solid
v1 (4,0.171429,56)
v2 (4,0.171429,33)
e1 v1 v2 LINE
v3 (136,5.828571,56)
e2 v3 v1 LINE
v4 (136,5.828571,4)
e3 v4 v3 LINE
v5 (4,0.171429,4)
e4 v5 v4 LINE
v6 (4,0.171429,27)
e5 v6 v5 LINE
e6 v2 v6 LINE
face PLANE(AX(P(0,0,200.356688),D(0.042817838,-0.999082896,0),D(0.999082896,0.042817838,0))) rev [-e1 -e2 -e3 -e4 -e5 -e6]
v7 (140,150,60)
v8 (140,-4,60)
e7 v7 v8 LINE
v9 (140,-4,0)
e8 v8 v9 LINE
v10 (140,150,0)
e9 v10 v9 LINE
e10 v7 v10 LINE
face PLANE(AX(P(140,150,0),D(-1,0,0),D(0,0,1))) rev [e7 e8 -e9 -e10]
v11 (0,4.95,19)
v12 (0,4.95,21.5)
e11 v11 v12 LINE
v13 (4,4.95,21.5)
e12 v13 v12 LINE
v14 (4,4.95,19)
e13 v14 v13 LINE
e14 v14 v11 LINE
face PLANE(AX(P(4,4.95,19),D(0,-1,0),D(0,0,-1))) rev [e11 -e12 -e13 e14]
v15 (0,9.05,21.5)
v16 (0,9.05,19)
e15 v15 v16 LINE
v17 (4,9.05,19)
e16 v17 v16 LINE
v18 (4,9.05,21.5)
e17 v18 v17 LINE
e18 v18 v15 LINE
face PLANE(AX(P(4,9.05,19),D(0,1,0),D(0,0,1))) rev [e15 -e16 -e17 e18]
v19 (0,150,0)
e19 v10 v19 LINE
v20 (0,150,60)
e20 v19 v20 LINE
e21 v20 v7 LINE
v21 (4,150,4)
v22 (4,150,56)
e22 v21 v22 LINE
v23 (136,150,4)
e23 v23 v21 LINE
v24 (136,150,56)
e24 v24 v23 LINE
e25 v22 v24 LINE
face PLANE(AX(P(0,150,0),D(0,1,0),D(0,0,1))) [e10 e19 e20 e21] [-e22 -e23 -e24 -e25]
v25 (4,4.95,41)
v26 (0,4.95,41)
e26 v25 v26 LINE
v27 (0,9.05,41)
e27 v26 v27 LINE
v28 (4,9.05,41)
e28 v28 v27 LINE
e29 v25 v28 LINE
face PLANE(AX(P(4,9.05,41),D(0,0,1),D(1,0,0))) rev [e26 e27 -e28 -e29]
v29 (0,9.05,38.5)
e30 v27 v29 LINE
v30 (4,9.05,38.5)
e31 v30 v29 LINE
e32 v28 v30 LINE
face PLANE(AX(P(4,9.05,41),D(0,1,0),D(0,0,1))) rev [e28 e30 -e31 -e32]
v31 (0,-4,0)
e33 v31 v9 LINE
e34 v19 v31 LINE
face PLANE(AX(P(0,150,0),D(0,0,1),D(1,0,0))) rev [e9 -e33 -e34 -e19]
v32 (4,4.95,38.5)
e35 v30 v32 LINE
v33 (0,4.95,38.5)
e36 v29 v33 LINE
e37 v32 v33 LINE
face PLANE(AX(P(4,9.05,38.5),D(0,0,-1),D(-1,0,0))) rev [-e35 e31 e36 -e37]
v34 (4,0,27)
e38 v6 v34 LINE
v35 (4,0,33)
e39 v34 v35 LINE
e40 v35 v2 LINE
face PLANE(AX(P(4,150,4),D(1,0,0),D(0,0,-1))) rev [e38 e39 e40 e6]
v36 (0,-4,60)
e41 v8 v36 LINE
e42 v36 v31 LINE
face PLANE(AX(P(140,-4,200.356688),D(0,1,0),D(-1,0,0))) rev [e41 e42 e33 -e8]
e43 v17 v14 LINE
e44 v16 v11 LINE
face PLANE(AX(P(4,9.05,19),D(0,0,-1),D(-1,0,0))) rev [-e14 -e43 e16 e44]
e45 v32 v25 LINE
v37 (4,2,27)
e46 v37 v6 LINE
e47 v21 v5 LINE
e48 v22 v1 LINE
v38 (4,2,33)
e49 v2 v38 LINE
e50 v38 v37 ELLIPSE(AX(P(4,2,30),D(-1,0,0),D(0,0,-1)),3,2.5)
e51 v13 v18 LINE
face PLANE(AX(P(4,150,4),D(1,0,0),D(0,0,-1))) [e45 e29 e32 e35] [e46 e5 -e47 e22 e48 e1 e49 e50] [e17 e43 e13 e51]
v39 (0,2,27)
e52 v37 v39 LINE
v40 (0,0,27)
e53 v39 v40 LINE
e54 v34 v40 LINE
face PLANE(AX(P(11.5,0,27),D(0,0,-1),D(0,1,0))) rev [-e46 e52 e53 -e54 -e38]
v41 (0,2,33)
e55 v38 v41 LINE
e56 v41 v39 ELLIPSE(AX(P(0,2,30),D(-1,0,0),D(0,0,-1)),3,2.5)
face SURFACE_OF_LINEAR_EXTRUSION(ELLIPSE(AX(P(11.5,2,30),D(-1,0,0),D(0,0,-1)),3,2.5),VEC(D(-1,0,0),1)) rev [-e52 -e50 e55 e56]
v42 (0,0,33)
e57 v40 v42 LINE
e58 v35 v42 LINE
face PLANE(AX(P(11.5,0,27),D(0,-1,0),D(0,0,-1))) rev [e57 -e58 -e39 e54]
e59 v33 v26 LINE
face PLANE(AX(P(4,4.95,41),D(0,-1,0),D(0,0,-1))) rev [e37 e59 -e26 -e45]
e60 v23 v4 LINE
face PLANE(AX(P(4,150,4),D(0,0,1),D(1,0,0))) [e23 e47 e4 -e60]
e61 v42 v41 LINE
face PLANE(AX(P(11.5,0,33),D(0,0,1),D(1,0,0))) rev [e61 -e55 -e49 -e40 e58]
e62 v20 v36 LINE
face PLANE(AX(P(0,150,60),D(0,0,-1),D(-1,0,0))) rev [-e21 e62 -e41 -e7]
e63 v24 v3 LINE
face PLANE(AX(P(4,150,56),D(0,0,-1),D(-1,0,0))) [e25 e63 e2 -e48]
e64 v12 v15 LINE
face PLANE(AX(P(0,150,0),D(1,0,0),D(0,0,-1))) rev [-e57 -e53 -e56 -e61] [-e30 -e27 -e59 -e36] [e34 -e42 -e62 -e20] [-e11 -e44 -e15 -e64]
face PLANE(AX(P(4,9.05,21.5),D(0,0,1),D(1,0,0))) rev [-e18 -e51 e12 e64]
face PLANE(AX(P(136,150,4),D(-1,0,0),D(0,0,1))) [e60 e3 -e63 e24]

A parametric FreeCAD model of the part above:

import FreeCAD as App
import Part
import Sketcher
from FreeCAD import Vector
Q = App.Units.Quantity


def add_polygon(sketch, points):
    """Adds a closed chain of lines whose ends are joined by coincident constraints."""
    first, n = sketch.GeometryCount, len(points)
    for a, b in zip(points, points[1:] + points[:1]):
        sketch.addGeometry(Part.LineSegment(App.Vector(*a, 0), App.Vector(*b, 0)), False)
    for i in range(n):
        sketch.addConstraint(Sketcher.Constraint("Coincident", first + i, 2, first + (i + 1) % n, 1))

doc = App.newDocument("Part")
body = doc.addObject("PartDesign::Body", "Body")

# Sketch on XZ plane
sketch1 = body.newObject("Sketcher::SketchObject", "Sketch")
sketch1.AttachmentSupport = (doc.getObject("XZ_Plane"), [""])
sketch1.MapMode = "FlatFace"
add_polygon(sketch1, [(0, 0), (0, 60), (140, 60), (140, 0)])  # lines 0-3
add_polygon(sketch1, [(136, 56), (4, 56), (4, 4), (136, 4)])  # lines 4-7
sketch1.addConstraint(Sketcher.Constraint("Vertical", 0))
sketch1.addConstraint(Sketcher.Constraint("Horizontal", 1))
sketch1.addConstraint(Sketcher.Constraint("Vertical", 2))
sketch1.addConstraint(Sketcher.Constraint("Horizontal", 3))
sketch1.addConstraint(Sketcher.Constraint("Horizontal", 4))
sketch1.addConstraint(Sketcher.Constraint("Vertical", 5))
sketch1.addConstraint(Sketcher.Constraint("Horizontal", 6))
sketch1.addConstraint(Sketcher.Constraint("Vertical", 7))
sketch1.addConstraint(Sketcher.Constraint("Coincident", 3, 2, -1, 1))
sketch1.addConstraint(Sketcher.Constraint("DistanceX", 1, 1, 1, 2, Q("140 mm")))
sketch1.addConstraint(Sketcher.Constraint("DistanceX", 4, 2, 4, 1, Q("132 mm")))
sketch1.addConstraint(Sketcher.Constraint("DistanceY", 0, 1, 0, 2, Q("60 mm")))
sketch1.addConstraint(Sketcher.Constraint("DistanceY", 5, 2, 5, 1, Q("52 mm")))
sketch1.addConstraint(Sketcher.Constraint("DistanceX", -1, 1, 4, 2, Q("4 mm")))
sketch1.addConstraint(Sketcher.Constraint("DistanceY", -1, 1, 4, 2, Q("56 mm")))
pad1 = body.newObject("PartDesign::Pad", "Pad")
pad1.Profile = sketch1
pad1.Length = 150
pad1.Reversed = True

# Sketch on XY plane
sketch2 = body.newObject("Sketcher::SketchObject", "Sketch001")
sketch2.AttachmentSupport = (doc.getObject("XY_Plane"), [""])
sketch2.MapMode = "FlatFace"
add_polygon(sketch2, [(140, 6), (0, 0), (0, -4), (140, -4)])  # lines 0-3
sketch2.addConstraint(Sketcher.Constraint("Vertical", 1))
sketch2.addConstraint(Sketcher.Constraint("Horizontal", 2))
sketch2.addConstraint(Sketcher.Constraint("Vertical", 3))
sketch2.addConstraint(Sketcher.Constraint("Coincident", 0, 2, -1, 1))
sketch2.addConstraint(Sketcher.Constraint("DistanceX", 2, 1, 2, 2, Q("140 mm")))
sketch2.addConstraint(Sketcher.Constraint("DistanceY", 1, 2, 1, 1, Q("4 mm")))
sketch2.addConstraint(Sketcher.Constraint("DistanceY", 3, 1, 3, 2, Q("10 mm")))
pad2 = body.newObject("PartDesign::Pad", "Pad001")
pad2.Profile = sketch2
pad2.Length = 60

# Sketch on YZ plane
sketch3 = body.newObject("Sketcher::SketchObject", "Sketch002")
sketch3.AttachmentSupport = (doc.getObject("YZ_Plane"), [""])
sketch3.MapMode = "FlatFace"
sketch3.addGeometry(Part.LineSegment(Vector(0, 27, 0), Vector(0, 33, 0)), False)
sketch3.addGeometry(Part.LineSegment(Vector(0, 33, 0), Vector(2, 33, 0)), False)
sketch3.addGeometry(Part.BSplineCurve([Vector(2, 33, 0), Vector(4.5, 33, 0), Vector(4.5, 30, 0), Vector(4.5, 27, 0), Vector(2, 27, 0)], [3, 2, 3], [3.141592654, 4.71238898, 6.283185307], False, 2, [1, 0.707106781, 1, 0.707106781, 1], False), False)
sketch3.addGeometry(Part.LineSegment(Vector(2, 27, 0), Vector(0, 27, 0)), False)
sketch3.addConstraint(Sketcher.Constraint("Block", 2))
sketch3.addConstraint(Sketcher.Constraint("Coincident", 0, 2, 1, 1))
sketch3.addConstraint(Sketcher.Constraint("Coincident", 1, 2, 2, 1))
sketch3.addConstraint(Sketcher.Constraint("Coincident", 2, 2, 3, 1))
sketch3.addConstraint(Sketcher.Constraint("Coincident", 3, 2, 0, 1))
sketch3.addConstraint(Sketcher.Constraint("Vertical", 0))
sketch3.addConstraint(Sketcher.Constraint("Horizontal", 1))
sketch3.addConstraint(Sketcher.Constraint("Horizontal", 3))
sketch3.addConstraint(Sketcher.Constraint("PointOnObject", 0, 2, -2))
pocket1 = body.newObject("PartDesign::Pocket", "Pocket")
pocket1.Profile = sketch3
pocket1.Length = 4
pocket1.Reversed = True

# Sketch on YZ plane
sketch4 = body.newObject("Sketcher::SketchObject", "Sketch003")
sketch4.AttachmentSupport = (doc.getObject("YZ_Plane"), [""])
sketch4.MapMode = "FlatFace"
add_polygon(sketch4, [(9.1, 38.5), (5, 38.5), (5, 41), (9.1, 41)])  # lines 0-3
add_polygon(sketch4, [(9.1, 19), (5, 19), (5, 21.5), (9.1, 21.5)])  # lines 4-7
sketch4.addConstraint(Sketcher.Constraint("Horizontal", 0))
sketch4.addConstraint(Sketcher.Constraint("Vertical", 1))
sketch4.addConstraint(Sketcher.Constraint("Horizontal", 2))
sketch4.addConstraint(Sketcher.Constraint("Vertical", 3))
sketch4.addConstraint(Sketcher.Constraint("Horizontal", 4))
sketch4.addConstraint(Sketcher.Constraint("Vertical", 5))
sketch4.addConstraint(Sketcher.Constraint("Horizontal", 6))
sketch4.addConstraint(Sketcher.Constraint("Vertical", 7))
sketch4.addConstraint(Sketcher.Constraint("Vertical", 1, 2, 4, 2))
sketch4.addConstraint(Sketcher.Constraint("Vertical", 3, 2, 6, 2))
sketch4.addConstraint(Sketcher.Constraint("Equal", 3, 5))
sketch4.addConstraint(Sketcher.Constraint("DistanceX", 0, 2, 0, 1, Q("4.1 mm")))
sketch4.addConstraint(Sketcher.Constraint("DistanceY", 1, 1, 1, 2, Q("2.5 mm")))
sketch4.addConstraint(Sketcher.Constraint("DistanceY", -1, 1, 1, 2, Q("41 mm")))
sketch4.addConstraint(Sketcher.Constraint("DistanceY", -1, 1, 4, 2, Q("19 mm")))
sketch4.addConstraint(Sketcher.Constraint("DistanceX", -1, 1, 0, 2, Q("4.95 mm")))
pocket2 = body.newObject("PartDesign::Pocket", "Pocket001")
pocket2.Profile = sketch4
pocket2.Length = 4
pocket2.Reversed = True

doc.recompute()
